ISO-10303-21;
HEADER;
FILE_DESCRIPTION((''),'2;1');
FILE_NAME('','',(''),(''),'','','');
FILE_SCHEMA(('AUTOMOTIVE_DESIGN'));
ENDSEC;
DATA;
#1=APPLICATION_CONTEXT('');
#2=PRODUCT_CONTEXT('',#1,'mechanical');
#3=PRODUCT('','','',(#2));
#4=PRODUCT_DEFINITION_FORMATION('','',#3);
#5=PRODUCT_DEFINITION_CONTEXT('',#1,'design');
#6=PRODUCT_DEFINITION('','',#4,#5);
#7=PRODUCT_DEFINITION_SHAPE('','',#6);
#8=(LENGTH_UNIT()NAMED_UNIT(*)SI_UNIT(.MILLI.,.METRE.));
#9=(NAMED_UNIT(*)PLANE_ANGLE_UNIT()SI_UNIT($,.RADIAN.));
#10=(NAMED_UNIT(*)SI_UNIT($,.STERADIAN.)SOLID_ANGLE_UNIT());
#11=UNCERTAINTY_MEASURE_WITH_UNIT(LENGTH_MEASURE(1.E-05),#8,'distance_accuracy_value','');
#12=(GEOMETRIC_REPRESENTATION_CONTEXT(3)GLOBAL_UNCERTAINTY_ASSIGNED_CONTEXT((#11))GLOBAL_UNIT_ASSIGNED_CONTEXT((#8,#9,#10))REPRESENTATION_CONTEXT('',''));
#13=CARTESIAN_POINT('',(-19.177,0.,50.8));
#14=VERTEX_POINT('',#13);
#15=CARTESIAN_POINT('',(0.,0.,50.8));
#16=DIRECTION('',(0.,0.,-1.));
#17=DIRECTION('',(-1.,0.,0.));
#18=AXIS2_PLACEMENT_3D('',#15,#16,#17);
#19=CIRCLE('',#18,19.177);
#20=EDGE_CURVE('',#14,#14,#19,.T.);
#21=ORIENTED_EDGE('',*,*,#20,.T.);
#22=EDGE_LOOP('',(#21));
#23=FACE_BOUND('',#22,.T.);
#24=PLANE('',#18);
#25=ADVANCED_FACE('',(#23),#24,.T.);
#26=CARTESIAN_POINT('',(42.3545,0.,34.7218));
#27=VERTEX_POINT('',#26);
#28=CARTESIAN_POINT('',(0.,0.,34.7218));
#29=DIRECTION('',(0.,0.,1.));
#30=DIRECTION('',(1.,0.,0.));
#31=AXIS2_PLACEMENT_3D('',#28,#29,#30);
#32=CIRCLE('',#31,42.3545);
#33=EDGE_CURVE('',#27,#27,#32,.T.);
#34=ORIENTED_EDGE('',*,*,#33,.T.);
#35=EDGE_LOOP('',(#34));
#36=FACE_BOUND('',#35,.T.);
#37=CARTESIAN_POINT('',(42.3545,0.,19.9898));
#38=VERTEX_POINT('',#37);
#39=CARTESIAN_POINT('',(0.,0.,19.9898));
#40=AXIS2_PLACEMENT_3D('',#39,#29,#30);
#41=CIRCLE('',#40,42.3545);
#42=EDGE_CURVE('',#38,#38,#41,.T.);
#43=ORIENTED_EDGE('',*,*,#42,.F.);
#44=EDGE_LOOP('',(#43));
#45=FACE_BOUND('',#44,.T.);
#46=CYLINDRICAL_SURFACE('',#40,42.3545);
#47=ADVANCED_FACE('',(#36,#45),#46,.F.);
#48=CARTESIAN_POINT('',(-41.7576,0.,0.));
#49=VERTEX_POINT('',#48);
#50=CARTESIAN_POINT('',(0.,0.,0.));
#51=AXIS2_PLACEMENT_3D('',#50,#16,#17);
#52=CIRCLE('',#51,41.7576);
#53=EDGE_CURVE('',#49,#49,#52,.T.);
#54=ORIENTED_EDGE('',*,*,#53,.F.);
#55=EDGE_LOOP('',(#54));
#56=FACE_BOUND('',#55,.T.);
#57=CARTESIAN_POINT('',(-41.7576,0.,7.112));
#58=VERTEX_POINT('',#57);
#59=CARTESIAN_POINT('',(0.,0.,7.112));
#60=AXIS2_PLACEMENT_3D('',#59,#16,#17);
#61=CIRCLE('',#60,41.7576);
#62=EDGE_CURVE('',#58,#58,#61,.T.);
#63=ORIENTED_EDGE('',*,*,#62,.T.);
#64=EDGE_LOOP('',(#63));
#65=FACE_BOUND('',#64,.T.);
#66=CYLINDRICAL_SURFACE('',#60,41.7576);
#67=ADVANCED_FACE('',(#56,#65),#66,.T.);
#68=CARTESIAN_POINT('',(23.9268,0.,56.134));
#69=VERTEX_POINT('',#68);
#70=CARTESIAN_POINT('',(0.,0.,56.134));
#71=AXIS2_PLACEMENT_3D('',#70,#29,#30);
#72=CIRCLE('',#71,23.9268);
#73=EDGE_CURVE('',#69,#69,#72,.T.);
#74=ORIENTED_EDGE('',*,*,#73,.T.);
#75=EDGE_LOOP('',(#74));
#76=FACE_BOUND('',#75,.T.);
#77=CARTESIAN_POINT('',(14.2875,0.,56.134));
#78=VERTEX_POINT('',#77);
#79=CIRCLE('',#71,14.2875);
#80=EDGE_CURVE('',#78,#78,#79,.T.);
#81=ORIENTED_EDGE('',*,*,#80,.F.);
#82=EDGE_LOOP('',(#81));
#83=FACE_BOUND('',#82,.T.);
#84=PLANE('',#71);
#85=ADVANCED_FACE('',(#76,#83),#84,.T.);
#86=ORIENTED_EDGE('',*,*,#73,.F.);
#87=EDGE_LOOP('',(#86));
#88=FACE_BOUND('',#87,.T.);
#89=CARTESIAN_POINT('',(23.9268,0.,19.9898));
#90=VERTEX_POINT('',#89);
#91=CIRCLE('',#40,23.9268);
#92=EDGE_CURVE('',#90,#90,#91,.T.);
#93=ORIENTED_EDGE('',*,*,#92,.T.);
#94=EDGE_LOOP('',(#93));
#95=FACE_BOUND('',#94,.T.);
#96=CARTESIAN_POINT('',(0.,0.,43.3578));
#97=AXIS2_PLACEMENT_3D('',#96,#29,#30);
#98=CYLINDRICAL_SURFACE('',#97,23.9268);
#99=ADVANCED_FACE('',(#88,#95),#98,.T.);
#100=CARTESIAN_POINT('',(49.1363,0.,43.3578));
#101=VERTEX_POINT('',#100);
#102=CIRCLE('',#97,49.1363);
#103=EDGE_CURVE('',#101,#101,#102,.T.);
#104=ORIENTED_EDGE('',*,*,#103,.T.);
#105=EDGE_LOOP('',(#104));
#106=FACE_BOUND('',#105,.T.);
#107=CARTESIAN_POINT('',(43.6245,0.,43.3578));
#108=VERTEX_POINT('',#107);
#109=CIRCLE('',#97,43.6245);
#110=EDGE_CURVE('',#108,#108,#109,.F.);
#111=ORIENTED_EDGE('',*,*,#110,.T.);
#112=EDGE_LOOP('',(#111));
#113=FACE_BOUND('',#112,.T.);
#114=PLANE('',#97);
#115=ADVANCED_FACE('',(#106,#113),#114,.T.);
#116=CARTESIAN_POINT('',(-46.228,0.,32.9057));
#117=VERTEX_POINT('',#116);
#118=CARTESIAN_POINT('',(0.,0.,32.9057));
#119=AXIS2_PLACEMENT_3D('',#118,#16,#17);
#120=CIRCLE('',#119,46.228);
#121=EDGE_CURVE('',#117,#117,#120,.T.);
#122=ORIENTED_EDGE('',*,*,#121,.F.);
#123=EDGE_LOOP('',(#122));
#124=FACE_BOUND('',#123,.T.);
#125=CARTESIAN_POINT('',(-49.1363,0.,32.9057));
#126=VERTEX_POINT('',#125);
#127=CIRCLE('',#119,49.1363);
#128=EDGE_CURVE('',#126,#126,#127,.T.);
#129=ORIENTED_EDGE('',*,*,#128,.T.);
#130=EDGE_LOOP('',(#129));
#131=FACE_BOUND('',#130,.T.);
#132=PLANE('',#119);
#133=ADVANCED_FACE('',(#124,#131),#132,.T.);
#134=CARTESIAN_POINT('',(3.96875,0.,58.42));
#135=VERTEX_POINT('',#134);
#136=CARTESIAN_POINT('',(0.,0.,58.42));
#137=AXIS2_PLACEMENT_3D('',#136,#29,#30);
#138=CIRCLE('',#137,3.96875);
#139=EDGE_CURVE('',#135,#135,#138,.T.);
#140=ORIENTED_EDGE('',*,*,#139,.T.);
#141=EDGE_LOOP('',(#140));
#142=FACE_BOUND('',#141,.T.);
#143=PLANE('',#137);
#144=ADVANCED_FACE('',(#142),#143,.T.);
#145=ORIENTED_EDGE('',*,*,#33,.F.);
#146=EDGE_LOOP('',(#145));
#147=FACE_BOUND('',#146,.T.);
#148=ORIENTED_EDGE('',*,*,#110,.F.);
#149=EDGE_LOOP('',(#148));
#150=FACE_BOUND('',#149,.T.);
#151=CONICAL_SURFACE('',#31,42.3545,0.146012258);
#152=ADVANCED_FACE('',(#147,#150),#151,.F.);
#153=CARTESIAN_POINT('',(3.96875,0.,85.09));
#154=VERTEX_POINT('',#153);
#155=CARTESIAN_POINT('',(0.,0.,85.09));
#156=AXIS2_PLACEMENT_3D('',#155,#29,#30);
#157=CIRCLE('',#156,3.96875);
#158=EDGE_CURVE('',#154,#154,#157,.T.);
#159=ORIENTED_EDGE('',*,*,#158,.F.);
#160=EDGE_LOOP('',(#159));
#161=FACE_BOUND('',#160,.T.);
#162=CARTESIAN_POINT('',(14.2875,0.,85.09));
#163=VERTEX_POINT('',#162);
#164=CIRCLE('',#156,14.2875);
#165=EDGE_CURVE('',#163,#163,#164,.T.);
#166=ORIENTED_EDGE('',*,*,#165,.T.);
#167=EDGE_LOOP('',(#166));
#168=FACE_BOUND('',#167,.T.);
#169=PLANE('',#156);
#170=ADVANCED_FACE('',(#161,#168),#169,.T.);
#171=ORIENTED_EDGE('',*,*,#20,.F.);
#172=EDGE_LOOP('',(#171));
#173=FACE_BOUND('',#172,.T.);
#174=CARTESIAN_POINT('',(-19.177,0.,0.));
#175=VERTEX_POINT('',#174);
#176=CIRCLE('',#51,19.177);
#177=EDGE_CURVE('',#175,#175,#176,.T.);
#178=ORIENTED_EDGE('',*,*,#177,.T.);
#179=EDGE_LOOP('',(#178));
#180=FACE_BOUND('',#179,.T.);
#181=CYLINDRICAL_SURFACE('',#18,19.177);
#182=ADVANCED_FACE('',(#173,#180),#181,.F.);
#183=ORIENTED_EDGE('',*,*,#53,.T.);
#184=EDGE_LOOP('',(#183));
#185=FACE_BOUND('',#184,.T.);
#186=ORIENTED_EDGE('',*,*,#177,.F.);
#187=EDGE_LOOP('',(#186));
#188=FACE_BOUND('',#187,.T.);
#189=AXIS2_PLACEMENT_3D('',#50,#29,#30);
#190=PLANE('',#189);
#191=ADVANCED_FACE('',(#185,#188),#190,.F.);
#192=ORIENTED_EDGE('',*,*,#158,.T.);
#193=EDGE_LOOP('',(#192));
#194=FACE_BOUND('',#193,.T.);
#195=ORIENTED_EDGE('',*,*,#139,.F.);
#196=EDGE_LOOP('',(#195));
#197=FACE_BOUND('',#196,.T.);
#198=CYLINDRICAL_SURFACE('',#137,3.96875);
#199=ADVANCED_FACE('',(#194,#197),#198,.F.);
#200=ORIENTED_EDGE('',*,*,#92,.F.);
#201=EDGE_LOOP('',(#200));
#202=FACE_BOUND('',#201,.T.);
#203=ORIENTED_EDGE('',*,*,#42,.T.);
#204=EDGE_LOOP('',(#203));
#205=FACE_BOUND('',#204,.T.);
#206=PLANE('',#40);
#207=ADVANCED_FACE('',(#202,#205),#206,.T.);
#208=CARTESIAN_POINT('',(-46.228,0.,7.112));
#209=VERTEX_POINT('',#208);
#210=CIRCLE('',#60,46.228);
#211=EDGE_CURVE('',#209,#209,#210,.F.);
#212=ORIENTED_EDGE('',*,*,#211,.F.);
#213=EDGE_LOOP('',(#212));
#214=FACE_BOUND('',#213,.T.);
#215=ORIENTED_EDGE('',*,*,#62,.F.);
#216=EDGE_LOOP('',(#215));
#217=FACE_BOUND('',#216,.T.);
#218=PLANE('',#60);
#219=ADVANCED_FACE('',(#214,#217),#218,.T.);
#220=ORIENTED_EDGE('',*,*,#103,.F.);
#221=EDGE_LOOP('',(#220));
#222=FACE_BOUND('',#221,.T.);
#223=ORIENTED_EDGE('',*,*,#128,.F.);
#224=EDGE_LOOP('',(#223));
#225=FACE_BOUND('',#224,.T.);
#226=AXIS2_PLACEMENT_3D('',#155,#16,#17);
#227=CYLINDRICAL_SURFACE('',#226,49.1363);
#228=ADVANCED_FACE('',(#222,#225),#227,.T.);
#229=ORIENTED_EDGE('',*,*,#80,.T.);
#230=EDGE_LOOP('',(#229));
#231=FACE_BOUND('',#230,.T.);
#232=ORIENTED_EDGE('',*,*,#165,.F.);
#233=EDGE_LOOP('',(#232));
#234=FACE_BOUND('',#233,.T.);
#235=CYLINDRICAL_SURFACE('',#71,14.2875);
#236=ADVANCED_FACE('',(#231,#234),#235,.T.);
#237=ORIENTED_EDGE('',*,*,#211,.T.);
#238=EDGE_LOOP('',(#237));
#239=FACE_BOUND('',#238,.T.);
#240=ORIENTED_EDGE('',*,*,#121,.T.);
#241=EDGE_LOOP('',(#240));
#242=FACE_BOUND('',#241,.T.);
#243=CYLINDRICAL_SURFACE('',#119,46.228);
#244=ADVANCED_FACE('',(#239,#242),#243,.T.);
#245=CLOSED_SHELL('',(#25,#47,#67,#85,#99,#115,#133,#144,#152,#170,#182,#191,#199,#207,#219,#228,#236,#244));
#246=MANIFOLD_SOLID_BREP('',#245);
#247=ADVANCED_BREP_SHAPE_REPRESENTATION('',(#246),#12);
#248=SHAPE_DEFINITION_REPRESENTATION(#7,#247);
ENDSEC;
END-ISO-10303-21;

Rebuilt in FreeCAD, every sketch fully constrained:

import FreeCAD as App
import Part
import Sketcher
from FreeCAD import Vector
Q = App.Units.Quantity


def edges_at(feature, points):
    """Names of the edges that pass closest to the given points."""
    edges = feature.Shape.Edges
    near = lambda p: min(range(len(edges)), key=lambda i: edges[i].distToShape(Part.Vertex(*p))[0])
    return sorted({f"Edge{near(p) + 1}" for p in points})


def add_polygon(sketch, points):
    """Adds a closed chain of lines whose ends are joined by coincident constraints."""
    first, n = sketch.GeometryCount, len(points)
    for a, b in zip(points, points[1:] + points[:1]):
        sketch.addGeometry(Part.LineSegment(App.Vector(*a, 0), App.Vector(*b, 0)), False)
    for i in range(n):
        sketch.addConstraint(Sketcher.Constraint("Coincident", first + i, 2, first + (i + 1) % n, 1))

doc = App.newDocument("Part")
params = doc.addObject("Spreadsheet::Sheet", "Params")
for row, (alias, value) in enumerate([
    ("sketch1_diameter", "3.869 in"),
    ("pad1_length", "3.35 in"),
    ("sketch2_diameter", "0.3125 in"),
    ("pocket1_length", "1.05 in"),
    ("sketch3_diameter", "1.125 in"),
    ("pocket2_length", "1.14 in"),
    ("sketch4_diameter", "1.884 in"),
    ("pocket3_length", "0.503 in"),
    ("sketch5_diameter", "3.64 in"),
    ("pocket4_length", "1.2955 in"),
    ("sketch6_diameter", "3.335 in"),
    ("sketch6_diameter2", "1.884 in"),
    ("pocket5_length", "0.92 in"),
    ("sketch7_diameter", "1.51 in"),
    ("pocket6_length", "2 in"),
    ("sketch8_diameter", "3.288 in"),
    ("pocket7_length", "0.28 in"),
    ("chamfer_size", "0.05 in"),
    ("chamfer_size2", "0.34 in"),
], start=1):
    params.set(f"A{row}", alias)
    params.set(f"B{row}", "=" + value)
    params.setAlias(f"B{row}", alias)

body = doc.addObject("PartDesign::Body", "Body")

# Sketch on XY plane
sketch1 = body.newObject("Sketcher::SketchObject", "Sketch")
sketch1.AttachmentSupport = (doc.getObject("XY_Plane"), [""])
sketch1.MapMode = "FlatFace"
sketch1.addGeometry(Part.Circle(Vector(0, 0, 0), Vector(0, 0, 1), 49), False)
sketch1.addConstraint(Sketcher.Constraint("Coincident", 0, 3, -1, 1))
sketch1.addConstraint(Sketcher.Constraint("Diameter", 0, Q("3.869 in")))
sketch1.setExpression("Constraints[1]", "Params.sketch1_diameter")
pad1 = body.newObject("PartDesign::Pad", "Pad")
pad1.Profile = sketch1
pad1.setExpression("Length", "Params.pad1_length")

# Sketch on XY plane
sketch2 = body.newObject("Sketcher::SketchObject", "Sketch001")
sketch2.AttachmentSupport = (doc.getObject("XY_Plane"), [""])
sketch2.MapMode = "FlatFace"
sketch2.AttachmentOffset = App.Placement(Vector(0, 0, 3.35 * 25.4), App.Rotation())
sketch2.addGeometry(Part.Circle(Vector(0, 0, 0), Vector(0, 0, 1), 4), False)
sketch2.addConstraint(Sketcher.Constraint("Coincident", 0, 3, -1, 1))
sketch2.addConstraint(Sketcher.Constraint("Diameter", 0, Q("0.3125 in")))
sketch2.setExpression("Constraints[1]", "Params.sketch2_diameter")
pocket1 = body.newObject("PartDesign::Pocket", "Pocket")
pocket1.Profile = sketch2
pocket1.setExpression("Length", "Params.pocket1_length")

# Sketch on XY plane
sketch3 = body.newObject("Sketcher::SketchObject", "Sketch002")
sketch3.AttachmentSupport = (doc.getObject("XY_Plane"), [""])
sketch3.MapMode = "FlatFace"
sketch3.AttachmentOffset = App.Placement(Vector(0, 0, 3.35 * 25.4), App.Rotation())
add_polygon(sketch3, [(-66, 66), (-66, -66), (66, -66), (66, 66)])  # lines 0-3
sketch3.addGeometry(Part.Circle(Vector(0, 0, 0), Vector(0, 0, 1), 14), False)  # 4
sketch3.addConstraint(Sketcher.Constraint("Vertical", 0))
sketch3.addConstraint(Sketcher.Constraint("Horizontal", 1))
sketch3.addConstraint(Sketcher.Constraint("Vertical", 2))
sketch3.addConstraint(Sketcher.Constraint("Horizontal", 3))
sketch3.addConstraint(Sketcher.Constraint("Coincident", 4, 3, -1, 1))
sketch3.addConstraint(Sketcher.Constraint("Symmetric", 0, 2, 2, 2, -1, 1))
sketch3.addConstraint(Sketcher.Constraint("Equal", 3, 0))
sketch3.addConstraint(Sketcher.Constraint("Diameter", 4, Q("1.125 in")))
sketch3.addConstraint(Sketcher.Constraint("DistanceX", 1, 1, 1, 2, Q("132.864 mm")))
sketch3.setExpression("Constraints[11]", "Params.sketch3_diameter")
pocket2 = body.newObject("PartDesign::Pocket", "Pocket001")
pocket2.Profile = sketch3
pocket2.setExpression("Length", "Params.pocket2_length")

# Sketch on XY plane
sketch4 = body.newObject("Sketcher::SketchObject", "Sketch003")
sketch4.AttachmentSupport = (doc.getObject("XY_Plane"), [""])
sketch4.MapMode = "FlatFace"
sketch4.AttachmentOffset = App.Placement(Vector(0, 0, 2.21 * 25.4), App.Rotation())
add_polygon(sketch4, [(-66, 66), (-66, -66), (66, -66), (66, 66)])  # lines 0-3
sketch4.addGeometry(Part.Circle(Vector(0, 0, 0), Vector(0, 0, 1), 24), False)  # 4
sketch4.addConstraint(Sketcher.Constraint("Vertical", 0))
sketch4.addConstraint(Sketcher.Constraint("Horizontal", 1))
sketch4.addConstraint(Sketcher.Constraint("Vertical", 2))
sketch4.addConstraint(Sketcher.Constraint("Horizontal", 3))
sketch4.addConstraint(Sketcher.Constraint("Coincident", 4, 3, -1, 1))
sketch4.addConstraint(Sketcher.Constraint("Symmetric", 0, 2, 2, 2, -1, 1))
sketch4.addConstraint(Sketcher.Constraint("Equal", 3, 0))
sketch4.addConstraint(Sketcher.Constraint("Diameter", 4, Q("1.884 in")))
sketch4.addConstraint(Sketcher.Constraint("DistanceX", 1, 1, 1, 2, Q("132.864 mm")))
sketch4.setExpression("Constraints[11]", "Params.sketch4_diameter")
pocket3 = body.newObject("PartDesign::Pocket", "Pocket002")
pocket3.Profile = sketch4
pocket3.setExpression("Length", "Params.pocket3_length")

# Sketch on XY plane
sketch5 = body.newObject("Sketcher::SketchObject", "Sketch004")
sketch5.AttachmentSupport = (doc.getObject("XY_Plane"), [""])
sketch5.MapMode = "FlatFace"
add_polygon(sketch5, [(66, 66), (66, -66), (-66, -66), (-66, 66)])  # lines 0-3
sketch5.addGeometry(Part.Circle(Vector(0, 0, 0), Vector(0, 0, 1), 46), False)  # 4
sketch5.addConstraint(Sketcher.Constraint("Vertical", 0))
sketch5.addConstraint(Sketcher.Constraint("Horizontal", 1))
sketch5.addConstraint(Sketcher.Constraint("Vertical", 2))
sketch5.addConstraint(Sketcher.Constraint("Horizontal", 3))
sketch5.addConstraint(Sketcher.Constraint("Coincident", 4, 3, -1, 1))
sketch5.addConstraint(Sketcher.Constraint("Symmetric", 0, 2, 2, 2, -1, 1))
sketch5.addConstraint(Sketcher.Constraint("Equal", 3, 0))
sketch5.addConstraint(Sketcher.Constraint("Diameter", 4, Q("3.64 in")))
sketch5.addConstraint(Sketcher.Constraint("DistanceX", 1, 2, 1, 1, Q("132.864 mm")))
sketch5.setExpression("Constraints[11]", "Params.sketch5_diameter")
pocket4 = body.newObject("PartDesign::Pocket", "Pocket003")
pocket4.Profile = sketch5
pocket4.setExpression("Length", "Params.pocket4_length")
pocket4.Reversed = True

# Sketch on XY plane
sketch6 = body.newObject("Sketcher::SketchObject", "Sketch005")
sketch6.AttachmentSupport = (doc.getObject("XY_Plane"), [""])
sketch6.MapMode = "FlatFace"
sketch6.AttachmentOffset = App.Placement(Vector(0, 0, 1.707 * 25.4), App.Rotation())
sketch6.addGeometry(Part.Circle(Vector(0, 0, 0), Vector(0, 0, 1), 42), False)
sketch6.addGeometry(Part.Circle(Vector(0, 0, 0), Vector(0, 0, 1), 24), False)
sketch6.addConstraint(Sketcher.Constraint("Coincident", 0, 3, -1, 1))
sketch6.addConstraint(Sketcher.Constraint("Coincident", 1, 3, -1, 1))
sketch6.addConstraint(Sketcher.Constraint("Diameter", 0, Q("3.335 in")))
sketch6.addConstraint(Sketcher.Constraint("Diameter", 1, Q("1.884 in")))
sketch6.setExpression("Constraints[2]", "Params.sketch6_diameter")
sketch6.setExpression("Constraints[3]", "Params.sketch6_diameter2")
pocket5 = body.newObject("PartDesign::Pocket", "Pocket004")
pocket5.Profile = sketch6
pocket5.setExpression("Length", "Params.pocket5_length")

# Sketch on XY plane
sketch7 = body.newObject("Sketcher::SketchObject", "Sketch006")
sketch7.AttachmentSupport = (doc.getObject("XY_Plane"), [""])
sketch7.MapMode = "FlatFace"
sketch7.addGeometry(Part.Circle(Vector(0, 0, 0), Vector(0, 0, 1), 19), False)
sketch7.addConstraint(Sketcher.Constraint("Coincident", 0, 3, -1, 1))
sketch7.addConstraint(Sketcher.Constraint("Diameter", 0, Q("1.51 in")))
sketch7.setExpression("Constraints[1]", "Params.sketch7_diameter")
pocket6 = body.newObject("PartDesign::Pocket", "Pocket005")
pocket6.Profile = sketch7
pocket6.setExpression("Length", "Params.pocket6_length")
pocket6.Reversed = True

# Sketch on XY plane
sketch8 = body.newObject("Sketcher::SketchObject", "Sketch007")
sketch8.AttachmentSupport = (doc.getObject("XY_Plane"), [""])
sketch8.MapMode = "FlatFace"
add_polygon(sketch8, [(66, 66), (66, -66), (-66, -66), (-66, 66)])  # lines 0-3
sketch8.addGeometry(Part.Circle(Vector(0, 0, 0), Vector(0, 0, 1), 42), False)  # 4
sketch8.addConstraint(Sketcher.Constraint("Vertical", 0))
sketch8.addConstraint(Sketcher.Constraint("Horizontal", 1))
sketch8.addConstraint(Sketcher.Constraint("Vertical", 2))
sketch8.addConstraint(Sketcher.Constraint("Horizontal", 3))
sketch8.addConstraint(Sketcher.Constraint("Coincident", 4, 3, -1, 1))
sketch8.addConstraint(Sketcher.Constraint("Symmetric", 0, 2, 2, 2, -1, 1))
sketch8.addConstraint(Sketcher.Constraint("Equal", 3, 0))
sketch8.addConstraint(Sketcher.Constraint("Diameter", 4, Q("3.288 in")))
sketch8.addConstraint(Sketcher.Constraint("DistanceX", 1, 2, 1, 1, Q("132.864 mm")))
sketch8.setExpression("Constraints[11]", "Params.sketch8_diameter")
pocket7 = body.newObject("PartDesign::Pocket", "Pocket006")
pocket7.Profile = sketch8
pocket7.setExpression("Length", "Params.pocket7_length")
pocket7.Reversed = True
doc.recompute()

chamfer = body.newObject("PartDesign::Chamfer", "Chamfer")
chamfer.Base = (pocket7, edges_at(pocket7, [(-42.355, 0, 43.358)]))
chamfer.ChamferType = "Two distances"
chamfer.setExpression("Size", "Params.chamfer_size")
chamfer.setExpression("Size2", "Params.chamfer_size2")
chamfer.FlipDirection = True

doc.recompute()
